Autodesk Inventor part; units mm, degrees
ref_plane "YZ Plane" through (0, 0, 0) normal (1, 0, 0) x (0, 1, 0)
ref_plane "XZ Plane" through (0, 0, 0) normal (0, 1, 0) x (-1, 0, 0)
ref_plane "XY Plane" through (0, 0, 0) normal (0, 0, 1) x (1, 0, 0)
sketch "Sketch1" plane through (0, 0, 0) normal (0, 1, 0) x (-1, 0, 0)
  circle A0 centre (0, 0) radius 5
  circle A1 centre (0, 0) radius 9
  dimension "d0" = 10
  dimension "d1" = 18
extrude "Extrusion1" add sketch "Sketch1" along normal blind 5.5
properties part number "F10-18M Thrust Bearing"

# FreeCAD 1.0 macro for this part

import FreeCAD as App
import Part
import Sketcher
from FreeCAD import Vector

doc = App.newDocument("Part")
body = doc.addObject("PartDesign::Body", "Body")

sketch1 = body.newObject("Sketcher::SketchObject", "Sketch")
sketch1.AttachmentSupport = (doc.getObject("XZ_Plane"), [""])
sketch1.MapMode = "FlatFace"
sketch1.addGeometry([
    Part.Circle(Vector(0, 0, 0), Vector(0, 0, 1), 9),
    Part.Circle(Vector(0, 0, 0), Vector(0, 0, 1), 5),
], False)
sketch1.addConstraint([
    Sketcher.Constraint("Coincident", 0, 3, -1, 1),
    Sketcher.Constraint("Coincident", 1, 3, -1, 1),
    Sketcher.Constraint("Diameter", 0, 18.0),
    Sketcher.Constraint("Diameter", 1, 10.0),
])
pad1 = body.newObject("PartDesign::Pad", "Pad")
pad1.Profile = sketch1
pad1.Length = 5.5
pad1.Reversed = True

doc.recompute()
